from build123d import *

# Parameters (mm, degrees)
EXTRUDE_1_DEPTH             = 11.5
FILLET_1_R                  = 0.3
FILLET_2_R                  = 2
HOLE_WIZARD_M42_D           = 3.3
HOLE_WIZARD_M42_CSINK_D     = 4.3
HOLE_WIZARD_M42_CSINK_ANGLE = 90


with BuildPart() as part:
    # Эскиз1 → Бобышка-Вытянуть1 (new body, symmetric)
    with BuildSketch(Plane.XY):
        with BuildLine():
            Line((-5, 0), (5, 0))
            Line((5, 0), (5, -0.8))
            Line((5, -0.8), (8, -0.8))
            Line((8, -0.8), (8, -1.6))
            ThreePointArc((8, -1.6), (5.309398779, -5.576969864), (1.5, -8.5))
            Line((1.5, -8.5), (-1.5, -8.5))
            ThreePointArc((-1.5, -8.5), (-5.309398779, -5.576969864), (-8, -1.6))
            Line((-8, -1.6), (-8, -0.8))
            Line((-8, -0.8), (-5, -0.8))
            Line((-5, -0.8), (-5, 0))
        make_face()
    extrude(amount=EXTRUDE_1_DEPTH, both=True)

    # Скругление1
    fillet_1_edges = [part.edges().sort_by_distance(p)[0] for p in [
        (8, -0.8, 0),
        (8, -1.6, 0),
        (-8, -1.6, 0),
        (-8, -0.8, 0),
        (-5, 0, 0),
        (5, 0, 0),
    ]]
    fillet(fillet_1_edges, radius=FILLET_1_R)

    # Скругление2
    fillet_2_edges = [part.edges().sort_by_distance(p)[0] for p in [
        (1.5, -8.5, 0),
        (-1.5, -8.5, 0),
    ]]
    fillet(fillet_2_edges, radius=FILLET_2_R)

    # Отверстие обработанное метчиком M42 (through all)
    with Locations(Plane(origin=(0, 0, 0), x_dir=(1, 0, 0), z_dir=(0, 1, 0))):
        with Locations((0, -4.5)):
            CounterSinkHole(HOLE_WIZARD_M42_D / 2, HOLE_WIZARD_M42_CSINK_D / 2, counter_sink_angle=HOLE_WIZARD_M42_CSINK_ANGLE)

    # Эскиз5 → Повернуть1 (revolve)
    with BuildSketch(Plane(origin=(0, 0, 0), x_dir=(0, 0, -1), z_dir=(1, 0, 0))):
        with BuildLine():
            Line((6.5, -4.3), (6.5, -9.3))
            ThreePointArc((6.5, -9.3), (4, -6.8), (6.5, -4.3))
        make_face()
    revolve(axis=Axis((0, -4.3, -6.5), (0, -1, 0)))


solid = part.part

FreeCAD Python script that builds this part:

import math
import FreeCAD as App
import Part
import Sketcher

V = App.Vector


def edges_at(feature, points):
    """Names of the edges that pass closest to the given points."""
    edges = feature.Shape.Edges
    near = lambda p: min(range(len(edges)), key=lambda i: edges[i].distToShape(Part.Vertex(*p))[0])
    return sorted({f"Edge{near(p) + 1}" for p in points})

doc = App.newDocument("Part")
body = doc.addObject("PartDesign::Body", "Body")

# Sketch on XY plane
sketch1 = body.newObject("Sketcher::SketchObject", "Sketch")
sketch1.AttachmentSupport = (doc.getObject("XY_Plane"), [""])
sketch1.MapMode = "FlatFace"
sketch1.addGeometry([
    Part.LineSegment(V(5, 0, 0), V(-5, 0, 0)),  # 0
    Part.LineSegment(V(-5, 0, 0), V(-5, -0.8, 0)),  # 1
    Part.LineSegment(V(-5, -0.8, 0), V(-8, -0.8, 0)),  # 2
    Part.LineSegment(V(-8, -0.8, 0), V(-8, -1.6, 0)),  # 3
    Part.ArcOfCircle(Part.Circle(V(5.6, 4.7, 0), V(0, 0, 1), 15), math.radians(-155), math.radians(-118)),  # 4
    Part.LineSegment(V(-1.5, -8.5, 0), V(1.5, -8.5, 0)),  # 5
    Part.ArcOfCircle(Part.Circle(V(-5.6, 4.7, 0), V(0, 0, 1), 15), math.radians(-62), math.radians(-25)),  # 6
    Part.LineSegment(V(8, -1.6, 0), V(8, -0.8, 0)),  # 7
    Part.LineSegment(V(8, -0.8, 0), V(5, -0.8, 0)),  # 8
    Part.LineSegment(V(5, -0.8, 0), V(5, 0, 0)),  # 9
], False)
sketch1.addConstraint([
    Sketcher.Constraint("Coincident", 0, 2, 1, 1),
    Sketcher.Constraint("Coincident", 1, 2, 2, 1),
    Sketcher.Constraint("Coincident", 2, 2, 3, 1),
    Sketcher.Constraint("Coincident", 3, 2, 4, 1),
    Sketcher.Constraint("Coincident", 4, 2, 5, 1),
    Sketcher.Constraint("Coincident", 5, 2, 6, 1),
    Sketcher.Constraint("Coincident", 6, 2, 7, 1),
    Sketcher.Constraint("Coincident", 7, 2, 8, 1),
    Sketcher.Constraint("Coincident", 8, 2, 9, 1),
    Sketcher.Constraint("Coincident", 9, 2, 0, 1),
    Sketcher.Constraint("Horizontal", 0),
    Sketcher.Constraint("Vertical", 1),
    Sketcher.Constraint("Horizontal", 2),
    Sketcher.Constraint("Vertical", 3),
    Sketcher.Constraint("Horizontal", 5),
    Sketcher.Constraint("Vertical", 7),
    Sketcher.Constraint("Horizontal", 8),
    Sketcher.Constraint("Vertical", 9),
    Sketcher.Constraint("Equal", 4, 6),
    Sketcher.Constraint("Symmetric", 0, 2, 9, 2, -1, 1),
    Sketcher.Constraint("Symmetric", 4, 3, 6, 3, -2),
    Sketcher.Constraint("Symmetric", 2, 2, 7, 2, -2),
    Sketcher.Constraint("Equal", 2, 5),
    Sketcher.Constraint("Equal", 1, 3),
    Sketcher.Constraint("Radius", 4, 15.0),
    Sketcher.Constraint("DistanceX", 0, 2, 0, 1, 10.0),
    Sketcher.Constraint("DistanceX", 2, 2, 2, 1, 3.0),
    Sketcher.Constraint("DistanceY", 1, 2, 1, 1, 0.8),
    Sketcher.Constraint("DistanceY", 4, 2, -1, 1, 8.5),
])
pad1 = body.newObject("PartDesign::Pad", "Pad")
pad1.Profile = sketch1
pad1.Length = 23
pad1.Midplane = True
doc.recompute()

fillet = body.newObject("PartDesign::Fillet", "Fillet")
fillet.Base = (pad1, edges_at(pad1, [
    (8, -0.8, 0),
    (8, -1.6, 0),
    (-8, -1.6, 0),
    (-8, -0.8, 0),
    (-5, 0, 0),
    (5, 0, 0),
]))
fillet.Radius = 0.3
doc.recompute()

fillet2 = body.newObject("PartDesign::Fillet", "Fillet001")
fillet2.Base = (fillet, edges_at(fillet, [(1.5, -8.5, 0), (-1.5, -8.5, 0)]))
fillet2.Radius = 2

# Sketch on XZ plane
sketch2 = body.newObject("Sketcher::SketchObject", "Sketch001")
sketch2.AttachmentSupport = (doc.getObject("XZ_Plane"), [""])
sketch2.MapMode = "FlatFace"
sketch2.addGeometry(Part.Circle(V(0, 4.5, 0), V(0, 0, 1), 1.6), False)
sketch2.addConstraint([
    Sketcher.Constraint("PointOnObject", 0, 3, -2),
    Sketcher.Constraint("Diameter", 0, 3.3),
    Sketcher.Constraint("DistanceY", -1, 1, 0, 3, 4.5),
])
doc.recompute()
hole = body.newObject("PartDesign::Hole", "Hole")
hole.Profile = sketch2
hole.ThreadType = "None"
hole.Diameter = 3.3
hole.DepthType = "ThroughAll"
hole.HoleCutType = "Countersink"
hole.HoleCutDiameter = 4.3
hole.HoleCutCountersinkAngle = 90
hole.Reversed = True

# Sketch on YZ plane
sketch3 = body.newObject("Sketcher::SketchObject", "Sketch002")
sketch3.AttachmentSupport = (doc.getObject("YZ_Plane"), [""])
sketch3.MapMode = "FlatFace"
sketch3.addGeometry([
    Part.LineSegment(V(-9.3, -6.5, 0), V(-4.3, -6.5, 0)),
    Part.ArcOfCircle(Part.Circle(V(-6.8, -6.5, 0), V(0, 0, 1), 2.5), math.radians(0), math.radians(180)),
], False)
sketch3.addGeometry(Part.LineSegment(V(-4.3, -6.5, 0), V(-9.3, -6.5, 0)), True)  # axis
sketch3.addConstraint([
    Sketcher.Constraint("Coincident", 0, 1, 1, 2),
    Sketcher.Constraint("Coincident", 1, 1, 0, 2),
    Sketcher.Constraint("Horizontal", 0),
    Sketcher.Constraint("Horizontal", 2),
    Sketcher.Constraint("Coincident", 2, 1, 1, 1),
    Sketcher.Constraint("Horizontal", 1, 3, 0, 1),
    Sketcher.Constraint("Equal", 0, 2),
    Sketcher.Constraint("Radius", 1, 2.5),
    Sketcher.Constraint("DistanceX", 1, 3, -1, 1, 6.8),
    Sketcher.Constraint("DistanceY", 1, 3, -1, 1, 6.5),
])
revolution = body.newObject("PartDesign::Revolution", "Revolution")
revolution.Profile = sketch3
revolution.ReferenceAxis = (sketch3, ["Axis0"])
revolution.Angle = 360

doc.recompute()
